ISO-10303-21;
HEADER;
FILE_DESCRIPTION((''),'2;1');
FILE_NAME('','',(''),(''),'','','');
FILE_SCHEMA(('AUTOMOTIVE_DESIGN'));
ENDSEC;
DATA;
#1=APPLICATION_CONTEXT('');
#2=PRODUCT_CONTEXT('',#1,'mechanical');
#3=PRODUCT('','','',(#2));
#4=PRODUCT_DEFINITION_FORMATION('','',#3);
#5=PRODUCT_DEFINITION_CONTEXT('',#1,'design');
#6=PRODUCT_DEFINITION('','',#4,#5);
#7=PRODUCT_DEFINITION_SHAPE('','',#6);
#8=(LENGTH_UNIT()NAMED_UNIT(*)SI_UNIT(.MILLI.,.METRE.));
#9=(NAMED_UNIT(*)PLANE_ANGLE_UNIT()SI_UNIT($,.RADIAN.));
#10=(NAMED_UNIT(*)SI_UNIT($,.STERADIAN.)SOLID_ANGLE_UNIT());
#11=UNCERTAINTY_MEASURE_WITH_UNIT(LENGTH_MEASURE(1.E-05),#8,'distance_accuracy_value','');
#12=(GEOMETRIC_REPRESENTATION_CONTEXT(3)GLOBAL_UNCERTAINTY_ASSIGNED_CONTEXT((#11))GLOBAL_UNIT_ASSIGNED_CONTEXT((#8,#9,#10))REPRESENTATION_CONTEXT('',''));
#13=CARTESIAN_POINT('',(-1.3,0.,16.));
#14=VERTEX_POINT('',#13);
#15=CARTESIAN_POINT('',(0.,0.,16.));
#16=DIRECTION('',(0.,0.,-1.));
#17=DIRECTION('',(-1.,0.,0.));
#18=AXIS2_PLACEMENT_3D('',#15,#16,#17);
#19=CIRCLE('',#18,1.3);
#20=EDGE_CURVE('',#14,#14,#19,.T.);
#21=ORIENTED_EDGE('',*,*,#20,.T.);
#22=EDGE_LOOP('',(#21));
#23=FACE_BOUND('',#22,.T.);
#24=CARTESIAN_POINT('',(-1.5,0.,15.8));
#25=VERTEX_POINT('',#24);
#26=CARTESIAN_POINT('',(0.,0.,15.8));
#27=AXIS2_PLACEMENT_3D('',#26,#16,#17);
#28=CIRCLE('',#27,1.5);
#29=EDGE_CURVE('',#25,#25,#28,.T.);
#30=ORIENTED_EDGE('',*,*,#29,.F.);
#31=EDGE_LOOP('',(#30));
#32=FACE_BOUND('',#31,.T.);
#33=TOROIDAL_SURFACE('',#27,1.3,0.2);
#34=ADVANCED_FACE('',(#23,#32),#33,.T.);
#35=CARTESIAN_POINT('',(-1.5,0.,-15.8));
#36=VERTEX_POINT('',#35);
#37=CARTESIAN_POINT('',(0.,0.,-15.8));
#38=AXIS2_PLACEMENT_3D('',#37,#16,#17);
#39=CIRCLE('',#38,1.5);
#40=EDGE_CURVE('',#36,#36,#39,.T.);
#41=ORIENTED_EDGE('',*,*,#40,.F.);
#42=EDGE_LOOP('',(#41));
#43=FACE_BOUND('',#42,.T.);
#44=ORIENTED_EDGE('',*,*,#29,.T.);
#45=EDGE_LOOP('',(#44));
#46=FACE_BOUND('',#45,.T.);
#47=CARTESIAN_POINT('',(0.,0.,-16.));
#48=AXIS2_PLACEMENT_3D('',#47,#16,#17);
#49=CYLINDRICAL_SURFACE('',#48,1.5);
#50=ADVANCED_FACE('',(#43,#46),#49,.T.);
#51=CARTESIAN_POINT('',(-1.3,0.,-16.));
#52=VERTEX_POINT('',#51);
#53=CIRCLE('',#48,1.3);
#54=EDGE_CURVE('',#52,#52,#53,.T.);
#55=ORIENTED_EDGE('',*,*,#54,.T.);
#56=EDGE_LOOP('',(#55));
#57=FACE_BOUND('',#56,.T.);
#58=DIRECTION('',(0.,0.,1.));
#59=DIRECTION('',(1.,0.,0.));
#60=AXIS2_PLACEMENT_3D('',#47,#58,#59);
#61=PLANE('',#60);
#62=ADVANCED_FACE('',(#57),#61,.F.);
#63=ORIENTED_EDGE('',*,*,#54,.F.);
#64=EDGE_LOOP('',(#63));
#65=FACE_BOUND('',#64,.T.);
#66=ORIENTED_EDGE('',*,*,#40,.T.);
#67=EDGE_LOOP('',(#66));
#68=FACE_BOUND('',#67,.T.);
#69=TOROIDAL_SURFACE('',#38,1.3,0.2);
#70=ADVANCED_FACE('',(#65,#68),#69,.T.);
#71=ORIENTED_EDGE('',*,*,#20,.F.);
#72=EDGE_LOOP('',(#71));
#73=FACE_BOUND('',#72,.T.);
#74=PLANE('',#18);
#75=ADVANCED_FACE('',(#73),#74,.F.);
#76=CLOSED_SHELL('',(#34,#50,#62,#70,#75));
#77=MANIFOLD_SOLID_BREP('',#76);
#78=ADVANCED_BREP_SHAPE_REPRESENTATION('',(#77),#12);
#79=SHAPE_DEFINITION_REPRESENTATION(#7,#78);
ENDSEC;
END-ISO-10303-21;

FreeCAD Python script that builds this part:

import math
import FreeCAD as App
import Part
import Sketcher

V = App.Vector
Q = App.Units.Quantity

doc = App.newDocument("Part")
body = doc.addObject("PartDesign::Body", "Body")

sketch1 = body.newObject("Sketcher::SketchObject", "Sketch")
sketch1.AttachmentSupport = (doc.getObject("XZ_Plane"), [""])
sketch1.MapMode = "FlatFace"
sketch1.addGeometry(Part.LineSegment(V(1.3, -16, 0), V(0, -16, 0)), False)
sketch1.addGeometry(Part.LineSegment(V(0, -16, 0), V(0, 16, 0)), False)
sketch1.addGeometry(Part.LineSegment(V(0, 16, 0), V(1.3, 16, 0)), False)
sketch1.addGeometry(Part.ArcOfCircle(Part.Circle(V(1.3, 15.8, 0), V(0, 0, 1), 0.2), math.radians(0), math.radians(90)), False)
sketch1.addGeometry(Part.LineSegment(V(1.5, 15.8, 0), V(1.5, -15.8, 0)), False)
sketch1.addGeometry(Part.ArcOfCircle(Part.Circle(V(1.3, -15.8, 0), V(0, 0, 1), 0.2), math.radians(-90), math.radians(0)), False)
sketch1.addConstraint(Sketcher.Constraint("Coincident", 0, 2, 1, 1))
sketch1.addConstraint(Sketcher.Constraint("Coincident", 1, 2, 2, 1))
sketch1.addConstraint(Sketcher.Constraint("Tangent", 2, 2, 3, 2))
sketch1.addConstraint(Sketcher.Constraint("Tangent", 3, 1, 4, 1))
sketch1.addConstraint(Sketcher.Constraint("Tangent", 4, 2, 5, 2))
sketch1.addConstraint(Sketcher.Constraint("Tangent", 5, 1, 0, 1))
sketch1.addConstraint(Sketcher.Constraint("Horizontal", 0))
sketch1.addConstraint(Sketcher.Constraint("Vertical", 1))
sketch1.addConstraint(Sketcher.Constraint("Horizontal", 2))
sketch1.addConstraint(Sketcher.Constraint("Vertical", 4))
sketch1.addConstraint(Sketcher.Constraint("Equal", 3, 5))
sketch1.addConstraint(Sketcher.Constraint("Symmetric", 0, 2, 1, 2, -1, 1))
sketch1.addConstraint(Sketcher.Constraint("Radius", 3, Q("0.2 mm")))
sketch1.addConstraint(Sketcher.Constraint("DistanceY", 1, 1, 1, 2, Q("32 mm")))
sketch1.addConstraint(Sketcher.Constraint("DistanceX", 0, 2, 0, 1, Q("1.3 mm")))
revolution = body.newObject("PartDesign::Revolution", "Revolution")
revolution.Profile = sketch1
revolution.ReferenceAxis = (sketch1, ["V_Axis"])
revolution.Angle = 360

doc.recompute()
